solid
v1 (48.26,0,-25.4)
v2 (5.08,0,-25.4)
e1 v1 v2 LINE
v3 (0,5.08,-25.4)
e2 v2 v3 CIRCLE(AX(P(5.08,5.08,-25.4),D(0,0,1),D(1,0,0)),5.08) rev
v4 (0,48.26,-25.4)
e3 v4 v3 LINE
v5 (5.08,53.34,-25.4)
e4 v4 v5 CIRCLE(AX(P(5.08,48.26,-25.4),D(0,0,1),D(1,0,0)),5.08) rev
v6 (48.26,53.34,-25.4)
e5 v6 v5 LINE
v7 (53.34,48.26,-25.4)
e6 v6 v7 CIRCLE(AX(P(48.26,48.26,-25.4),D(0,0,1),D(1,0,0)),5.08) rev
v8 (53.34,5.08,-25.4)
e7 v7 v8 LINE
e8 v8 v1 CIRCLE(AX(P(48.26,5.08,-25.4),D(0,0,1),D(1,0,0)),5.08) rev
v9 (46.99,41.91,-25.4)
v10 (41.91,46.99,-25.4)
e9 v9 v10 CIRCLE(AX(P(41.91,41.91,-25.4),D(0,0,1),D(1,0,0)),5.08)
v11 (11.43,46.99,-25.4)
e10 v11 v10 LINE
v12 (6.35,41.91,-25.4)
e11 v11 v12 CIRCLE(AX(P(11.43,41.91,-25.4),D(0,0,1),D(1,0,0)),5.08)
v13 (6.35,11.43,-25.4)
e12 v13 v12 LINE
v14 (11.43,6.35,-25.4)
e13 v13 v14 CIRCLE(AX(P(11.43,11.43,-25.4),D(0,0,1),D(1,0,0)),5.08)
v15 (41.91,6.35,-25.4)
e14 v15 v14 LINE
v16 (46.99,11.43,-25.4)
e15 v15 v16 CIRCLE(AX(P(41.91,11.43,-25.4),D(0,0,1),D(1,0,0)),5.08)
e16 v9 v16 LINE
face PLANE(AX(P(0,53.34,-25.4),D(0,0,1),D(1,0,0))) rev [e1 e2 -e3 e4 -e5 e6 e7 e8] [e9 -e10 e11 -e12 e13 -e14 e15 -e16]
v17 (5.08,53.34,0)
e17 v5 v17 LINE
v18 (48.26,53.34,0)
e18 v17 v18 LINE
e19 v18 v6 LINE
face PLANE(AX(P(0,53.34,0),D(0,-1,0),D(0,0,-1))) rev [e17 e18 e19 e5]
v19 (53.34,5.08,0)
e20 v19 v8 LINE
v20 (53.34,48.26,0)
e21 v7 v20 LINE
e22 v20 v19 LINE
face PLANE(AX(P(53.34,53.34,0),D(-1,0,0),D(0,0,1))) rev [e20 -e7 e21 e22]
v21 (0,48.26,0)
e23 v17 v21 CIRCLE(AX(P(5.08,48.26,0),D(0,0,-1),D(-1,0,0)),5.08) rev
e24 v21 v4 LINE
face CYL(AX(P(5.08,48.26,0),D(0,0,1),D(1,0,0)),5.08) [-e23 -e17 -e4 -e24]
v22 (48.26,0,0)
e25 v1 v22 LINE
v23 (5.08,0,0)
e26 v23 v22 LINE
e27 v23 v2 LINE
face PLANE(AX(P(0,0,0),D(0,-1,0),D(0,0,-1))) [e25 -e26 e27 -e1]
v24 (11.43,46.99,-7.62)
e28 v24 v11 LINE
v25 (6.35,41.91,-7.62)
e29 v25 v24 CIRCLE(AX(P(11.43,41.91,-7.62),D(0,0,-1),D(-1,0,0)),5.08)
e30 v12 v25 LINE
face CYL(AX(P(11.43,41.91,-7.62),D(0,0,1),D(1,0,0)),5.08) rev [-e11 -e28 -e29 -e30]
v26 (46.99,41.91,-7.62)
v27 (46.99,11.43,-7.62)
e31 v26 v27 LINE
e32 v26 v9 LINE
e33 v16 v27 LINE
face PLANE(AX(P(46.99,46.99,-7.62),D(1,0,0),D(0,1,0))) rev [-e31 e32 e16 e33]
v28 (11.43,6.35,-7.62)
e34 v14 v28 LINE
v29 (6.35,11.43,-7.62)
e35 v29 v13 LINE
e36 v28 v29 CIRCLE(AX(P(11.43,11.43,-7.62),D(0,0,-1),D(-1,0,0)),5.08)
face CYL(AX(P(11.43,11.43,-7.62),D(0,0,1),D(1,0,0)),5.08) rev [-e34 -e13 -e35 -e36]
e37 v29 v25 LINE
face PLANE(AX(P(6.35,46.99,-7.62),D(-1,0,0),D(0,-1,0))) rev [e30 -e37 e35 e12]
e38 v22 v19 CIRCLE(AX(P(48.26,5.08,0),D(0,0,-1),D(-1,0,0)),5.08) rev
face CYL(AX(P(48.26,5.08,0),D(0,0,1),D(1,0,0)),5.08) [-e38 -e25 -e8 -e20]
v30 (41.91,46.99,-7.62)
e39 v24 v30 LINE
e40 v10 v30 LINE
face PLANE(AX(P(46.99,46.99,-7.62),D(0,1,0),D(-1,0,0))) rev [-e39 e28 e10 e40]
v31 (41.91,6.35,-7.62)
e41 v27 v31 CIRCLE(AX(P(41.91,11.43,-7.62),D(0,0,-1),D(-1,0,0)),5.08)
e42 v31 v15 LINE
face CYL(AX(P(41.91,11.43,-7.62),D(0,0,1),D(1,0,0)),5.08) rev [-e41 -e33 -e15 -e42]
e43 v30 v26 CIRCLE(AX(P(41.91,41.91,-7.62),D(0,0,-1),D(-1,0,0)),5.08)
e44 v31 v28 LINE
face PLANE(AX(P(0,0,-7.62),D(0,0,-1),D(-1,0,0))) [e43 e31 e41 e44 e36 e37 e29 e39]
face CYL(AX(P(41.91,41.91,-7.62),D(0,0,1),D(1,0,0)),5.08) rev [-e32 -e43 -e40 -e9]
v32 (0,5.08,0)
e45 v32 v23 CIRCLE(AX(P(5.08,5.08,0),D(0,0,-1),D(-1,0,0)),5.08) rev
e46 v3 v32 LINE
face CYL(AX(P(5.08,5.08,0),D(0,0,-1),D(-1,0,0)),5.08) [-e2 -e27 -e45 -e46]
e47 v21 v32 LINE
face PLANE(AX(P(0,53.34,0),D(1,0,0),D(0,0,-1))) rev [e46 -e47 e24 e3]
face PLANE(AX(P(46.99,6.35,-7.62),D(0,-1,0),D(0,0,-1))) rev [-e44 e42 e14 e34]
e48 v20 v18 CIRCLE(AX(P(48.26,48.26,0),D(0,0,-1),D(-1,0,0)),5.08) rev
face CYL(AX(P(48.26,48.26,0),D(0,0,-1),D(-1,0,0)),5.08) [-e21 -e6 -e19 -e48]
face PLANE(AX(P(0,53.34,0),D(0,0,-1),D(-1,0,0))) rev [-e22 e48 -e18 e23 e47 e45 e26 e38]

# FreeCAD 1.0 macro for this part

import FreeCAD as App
import Part
import Sketcher
from FreeCAD import Vector
Q = App.Units.Quantity


def edges_at(feature, points):
    """Names of the edges that pass closest to the given points."""
    edges = feature.Shape.Edges
    near = lambda p: min(range(len(edges)), key=lambda i: edges[i].distToShape(Part.Vertex(*p))[0])
    return sorted({f"Edge{near(p) + 1}" for p in points})

doc = App.newDocument("Part")
params = doc.addObject("Spreadsheet::Sheet", "Params")
for row, (alias, value) in enumerate([
    ("sketch1_height", "1 in"),
    ("sketch1_width", "2.1 in"),
    ("pad1_length", "2.1 in"),
    ("fillet_radius", "0.2 in"),
    ("sketch2_width", "1.6 in"),
    ("pocket1_length", "0.7 in"),
    ("fillet2_radius", "0.2 in"),
], start=1):
    params.set(f"A{row}", alias)
    params.set(f"B{row}", "=" + value)
    params.setAlias(f"B{row}", alias)

body = doc.addObject("PartDesign::Body", "Body")

# Sketch on XZ plane
sketch1 = body.newObject("Sketcher::SketchObject", "Sketch")
sketch1.AttachmentSupport = (doc.getObject("XZ_Plane"), [""])
sketch1.MapMode = "FlatFace"
sketch1.addGeometry([
    Part.LineSegment(Vector(0, -25, 0), Vector(0, 0, 0)),
    Part.LineSegment(Vector(0, 0, 0), Vector(53, 0, 0)),
    Part.LineSegment(Vector(53, 0, 0), Vector(53, -25, 0)),
    Part.LineSegment(Vector(53, -25, 0), Vector(0, -25, 0)),
], False)
sketch1.addConstraint([
    Sketcher.Constraint("Coincident", 0, 2, 1, 1),
    Sketcher.Constraint("Coincident", 1, 2, 2, 1),
    Sketcher.Constraint("Coincident", 2, 2, 3, 1),
    Sketcher.Constraint("Coincident", 3, 2, 0, 1),
    Sketcher.Constraint("Vertical", 0),
    Sketcher.Constraint("Horizontal", 1),
    Sketcher.Constraint("Vertical", 2),
    Sketcher.Constraint("Horizontal", 3),
    Sketcher.Constraint("Coincident", 0, 2, -1, 1),
    Sketcher.Constraint("DistanceY", 0, 1, 0, 2, Q("1 in")),
    Sketcher.Constraint("DistanceX", 1, 1, 1, 2, Q("2.1 in")),
])
sketch1.setExpression("Constraints[9]", "Params.sketch1_height")
sketch1.setExpression("Constraints[10]", "Params.sketch1_width")
pad1 = body.newObject("PartDesign::Pad", "Pad")
pad1.Profile = sketch1
pad1.setExpression("Length", "Params.pad1_length")
pad1.Reversed = True
doc.recompute()

fillet = body.newObject("PartDesign::Fillet", "Fillet")
fillet.Base = (pad1, edges_at(pad1, [
    (53.34, 53.34, -12.7),
    (0, 53.34, -12.7),
    (53.34, 0, -12.7),
    (0, 0, -12.7),
]))
fillet.setExpression("Radius", "Params.fillet_radius")

# Sketch on XY plane
sketch2 = body.newObject("Sketcher::SketchObject", "Sketch001")
sketch2.AttachmentSupport = (doc.getObject("XY_Plane"), [""])
sketch2.MapMode = "FlatFace"
sketch2.AttachmentOffset = App.Placement(Vector(0, 0, -1 * 25.4), App.Rotation())
sketch2.addGeometry([
    Part.LineSegment(Vector(47, 47, 0), Vector(47, 6, 0)),
    Part.LineSegment(Vector(47, 6, 0), Vector(6, 6, 0)),
    Part.LineSegment(Vector(6, 6, 0), Vector(6, 47, 0)),
    Part.LineSegment(Vector(6, 47, 0), Vector(47, 47, 0)),
], False)
sketch2.addConstraint([
    Sketcher.Constraint("Coincident", 0, 2, 1, 1),
    Sketcher.Constraint("Coincident", 1, 2, 2, 1),
    Sketcher.Constraint("Coincident", 2, 2, 3, 1),
    Sketcher.Constraint("Coincident", 3, 2, 0, 1),
    Sketcher.Constraint("Vertical", 0),
    Sketcher.Constraint("Horizontal", 1),
    Sketcher.Constraint("Vertical", 2),
    Sketcher.Constraint("Horizontal", 3),
    Sketcher.Constraint("Equal", 3, 0),
    Sketcher.Constraint("DistanceX", 1, 2, 1, 1, Q("1.6 in")),
    Sketcher.Constraint("DistanceX", -1, 1, 0, 2, Q("1.85 in")),
    Sketcher.Constraint("DistanceY", -1, 1, 0, 2, Q("0.25 in")),
])
sketch2.setExpression("Constraints[9]", "Params.sketch2_width")
pocket1 = body.newObject("PartDesign::Pocket", "Pocket")
pocket1.Profile = sketch2
pocket1.setExpression("Length", "Params.pocket1_length")
pocket1.Reversed = True
doc.recompute()

fillet2 = body.newObject("PartDesign::Fillet", "Fillet001")
fillet2.Base = (pocket1, edges_at(pocket1, [
    (46.99, 6.35, -16.51),
    (46.99, 46.99, -16.51),
    (6.35, 46.99, -16.51),
    (6.35, 6.35, -16.51),
]))
fillet2.setExpression("Radius", "Params.fillet2_radius")

doc.recompute()
